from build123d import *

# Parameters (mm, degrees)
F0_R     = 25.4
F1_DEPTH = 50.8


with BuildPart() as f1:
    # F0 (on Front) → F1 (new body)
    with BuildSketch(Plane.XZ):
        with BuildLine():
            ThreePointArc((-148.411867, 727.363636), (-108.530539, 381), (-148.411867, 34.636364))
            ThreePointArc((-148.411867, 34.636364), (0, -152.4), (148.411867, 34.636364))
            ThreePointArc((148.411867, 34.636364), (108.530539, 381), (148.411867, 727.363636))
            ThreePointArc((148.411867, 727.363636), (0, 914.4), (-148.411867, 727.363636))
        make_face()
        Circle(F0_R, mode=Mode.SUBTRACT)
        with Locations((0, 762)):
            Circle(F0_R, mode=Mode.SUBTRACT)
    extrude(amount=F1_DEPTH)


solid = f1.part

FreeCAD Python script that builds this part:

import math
import FreeCAD as App
import Part
import Sketcher

V = App.Vector
Q = App.Units.Quantity

doc = App.newDocument("Part")
body = doc.addObject("PartDesign::Body", "Body")

# Sketch on XZ plane
sketch1 = doc.addObject("Sketcher::SketchObject", "Sketch")
body.addObject(sketch1)
sketch1.AttachmentSupport = (doc.XZ_Plane, [""])
sketch1.MapMode = "FlatFace"
sketch1.addGeometry(Part.ArcOfCircle(Part.Circle(V(-1633, 381, 0), V(0, 0, 1), 1524), math.radians(-13), math.radians(13)), False)
sketch1.addGeometry(Part.ArcOfCircle(Part.Circle(V(0, 0, 0), V(0, 0, 1), 152), math.radians(167), math.radians(373)), False)
sketch1.addGeometry(Part.ArcOfCircle(Part.Circle(V(1633, 381, 0), V(0, 0, 1), 1524), math.radians(167), math.radians(193)), False)
sketch1.addGeometry(Part.ArcOfCircle(Part.Circle(V(0, 762, 0), V(0, 0, 1), 152), math.radians(-13), math.radians(193)), False)
sketch1.addGeometry(Part.Circle(V(0, 0, 0), V(0, 0, 1), 25), False)
sketch1.addGeometry(Part.Circle(V(0, 762, 0), V(0, 0, 1), 25), False)
sketch1.addConstraint(Sketcher.Constraint("Tangent", 0, 1, 1, 1))
sketch1.addConstraint(Sketcher.Constraint("Tangent", 1, 2, 2, 2))
sketch1.addConstraint(Sketcher.Constraint("Tangent", 2, 1, 3, 1))
sketch1.addConstraint(Sketcher.Constraint("Tangent", 3, 2, 0, 2))
sketch1.addConstraint(Sketcher.Constraint("Coincident", 1, 3, -1, 1))
sketch1.addConstraint(Sketcher.Constraint("Coincident", 4, 3, -1, 1))
sketch1.addConstraint(Sketcher.Constraint("Coincident", 5, 3, 3, 3))
sketch1.addConstraint(Sketcher.Constraint("Equal", 0, 2))
sketch1.addConstraint(Sketcher.Constraint("Equal", 1, 3))
sketch1.addConstraint(Sketcher.Constraint("Equal", 4, 5))
sketch1.addConstraint(Sketcher.Constraint("PointOnObject", 3, 3, -2))
sketch1.addConstraint(Sketcher.Constraint("Diameter", 4, Q("2 in")))
sketch1.addConstraint(Sketcher.Constraint("Radius", 1, Q("6 in")))
sketch1.addConstraint(Sketcher.Constraint("DistanceY", -1, 1, 0, 3, Q("15 in")))
sketch1.addConstraint(Sketcher.Constraint("Radius", 0, 1524.000012))
pad1 = doc.addObject("PartDesign::Pad", "Pad")
body.addObject(pad1)
pad1.Profile = sketch1
pad1.Length = Q("2 in")

doc.recompute()
